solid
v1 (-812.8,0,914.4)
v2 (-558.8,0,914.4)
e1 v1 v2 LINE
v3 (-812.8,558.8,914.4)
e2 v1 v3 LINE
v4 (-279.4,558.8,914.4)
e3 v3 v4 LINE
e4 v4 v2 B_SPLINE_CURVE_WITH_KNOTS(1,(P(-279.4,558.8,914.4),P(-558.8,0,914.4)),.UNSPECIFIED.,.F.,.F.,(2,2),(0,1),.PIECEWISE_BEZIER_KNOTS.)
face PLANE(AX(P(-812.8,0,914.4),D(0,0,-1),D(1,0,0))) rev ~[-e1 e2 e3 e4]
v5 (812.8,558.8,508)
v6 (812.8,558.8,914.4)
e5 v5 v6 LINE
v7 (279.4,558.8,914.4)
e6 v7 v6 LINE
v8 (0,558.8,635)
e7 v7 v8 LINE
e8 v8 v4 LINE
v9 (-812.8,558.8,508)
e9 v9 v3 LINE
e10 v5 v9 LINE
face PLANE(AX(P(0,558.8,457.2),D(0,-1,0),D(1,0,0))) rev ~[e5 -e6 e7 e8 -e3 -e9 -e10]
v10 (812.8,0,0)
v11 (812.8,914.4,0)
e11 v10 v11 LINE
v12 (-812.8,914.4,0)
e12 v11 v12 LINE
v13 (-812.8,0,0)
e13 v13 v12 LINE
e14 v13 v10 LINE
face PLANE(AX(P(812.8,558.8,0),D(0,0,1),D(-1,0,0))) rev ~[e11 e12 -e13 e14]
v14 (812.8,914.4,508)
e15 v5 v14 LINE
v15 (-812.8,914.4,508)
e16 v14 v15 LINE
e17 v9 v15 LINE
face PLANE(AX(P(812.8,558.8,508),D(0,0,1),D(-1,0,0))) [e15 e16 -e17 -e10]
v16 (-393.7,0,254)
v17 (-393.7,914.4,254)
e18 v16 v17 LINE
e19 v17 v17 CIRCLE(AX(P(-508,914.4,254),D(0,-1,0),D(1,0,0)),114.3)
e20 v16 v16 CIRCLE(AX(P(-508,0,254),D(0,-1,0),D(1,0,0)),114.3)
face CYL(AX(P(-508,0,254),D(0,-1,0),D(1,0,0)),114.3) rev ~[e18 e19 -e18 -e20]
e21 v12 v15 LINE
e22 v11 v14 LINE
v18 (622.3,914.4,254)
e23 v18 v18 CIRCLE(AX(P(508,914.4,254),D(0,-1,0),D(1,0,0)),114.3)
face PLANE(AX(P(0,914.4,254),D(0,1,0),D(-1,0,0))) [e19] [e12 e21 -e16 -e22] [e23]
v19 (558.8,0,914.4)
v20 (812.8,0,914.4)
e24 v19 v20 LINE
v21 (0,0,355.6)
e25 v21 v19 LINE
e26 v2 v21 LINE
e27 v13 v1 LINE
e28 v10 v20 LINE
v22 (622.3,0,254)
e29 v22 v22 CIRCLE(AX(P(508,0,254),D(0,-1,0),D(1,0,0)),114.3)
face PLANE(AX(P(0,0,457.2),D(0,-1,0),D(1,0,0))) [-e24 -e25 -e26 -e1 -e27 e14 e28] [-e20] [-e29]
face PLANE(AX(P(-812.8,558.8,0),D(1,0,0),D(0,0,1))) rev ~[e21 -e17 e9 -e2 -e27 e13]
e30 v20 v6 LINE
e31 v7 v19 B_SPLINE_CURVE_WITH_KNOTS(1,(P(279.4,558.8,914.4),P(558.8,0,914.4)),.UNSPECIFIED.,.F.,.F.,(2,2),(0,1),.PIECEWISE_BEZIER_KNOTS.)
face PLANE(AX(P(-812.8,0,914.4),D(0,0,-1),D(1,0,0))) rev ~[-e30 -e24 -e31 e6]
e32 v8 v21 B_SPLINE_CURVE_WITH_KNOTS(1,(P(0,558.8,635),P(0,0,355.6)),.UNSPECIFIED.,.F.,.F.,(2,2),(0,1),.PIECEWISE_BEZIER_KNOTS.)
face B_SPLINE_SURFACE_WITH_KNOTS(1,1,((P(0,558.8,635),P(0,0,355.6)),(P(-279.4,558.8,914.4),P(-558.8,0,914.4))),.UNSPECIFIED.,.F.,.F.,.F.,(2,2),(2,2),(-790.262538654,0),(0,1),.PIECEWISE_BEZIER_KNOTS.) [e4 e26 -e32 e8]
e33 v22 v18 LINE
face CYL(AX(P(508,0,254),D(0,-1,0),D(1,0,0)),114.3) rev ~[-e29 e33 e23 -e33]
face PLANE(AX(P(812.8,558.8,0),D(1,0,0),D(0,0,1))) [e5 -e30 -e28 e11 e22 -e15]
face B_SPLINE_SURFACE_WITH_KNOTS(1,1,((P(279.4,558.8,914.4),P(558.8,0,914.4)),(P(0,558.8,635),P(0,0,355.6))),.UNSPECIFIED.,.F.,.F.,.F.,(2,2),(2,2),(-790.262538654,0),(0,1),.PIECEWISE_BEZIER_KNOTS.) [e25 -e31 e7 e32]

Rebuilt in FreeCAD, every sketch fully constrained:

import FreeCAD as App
import Part
import Sketcher

V = App.Vector
Q = App.Units.Quantity

doc = App.newDocument("Part")
params = doc.addObject("Spreadsheet::Sheet", "Params")
for row, (alias, value) in enumerate([
    ("sketch1_width", "64 in"),
    ("sketch1_height", "36 in"),
    ("pad1_length", "22 in"),
    ("sketch2_width", "64 in"),
    ("sketch2_height", "20 in"),
    ("pad2_length", "14 in"),
    ("sketch3_width", "22 in"),
    ("sketch4_width", "44 in"),
    ("sketch5_diameter", "9 in"),
], start=1):
    params.set(f"A{row}", alias)
    params.set(f"B{row}", "=" + value)
    params.setAlias(f"B{row}", alias)

body = doc.addObject("PartDesign::Body", "Body")

# Sketch on XZ plane
sketch1 = body.newObject("Sketcher::SketchObject", "Sketch")
sketch1.AttachmentSupport = (doc.getObject("XZ_Plane"), [""])
sketch1.MapMode = "FlatFace"
sketch1.addGeometry([
    Part.LineSegment(V(-813, 914, 0), V(-813, 0, 0)),
    Part.LineSegment(V(-813, 0, 0), V(813, 0, 0)),
    Part.LineSegment(V(813, 0, 0), V(813, 914, 0)),
    Part.LineSegment(V(813, 914, 0), V(-813, 914, 0)),
], False)
sketch1.addConstraint([
    Sketcher.Constraint("Coincident", 0, 2, 1, 1),
    Sketcher.Constraint("Coincident", 1, 2, 2, 1),
    Sketcher.Constraint("Coincident", 2, 2, 3, 1),
    Sketcher.Constraint("Coincident", 3, 2, 0, 1),
    Sketcher.Constraint("Vertical", 0),
    Sketcher.Constraint("Horizontal", 1),
    Sketcher.Constraint("Vertical", 2),
    Sketcher.Constraint("Horizontal", 3),
    Sketcher.Constraint("Symmetric", 0, 2, 1, 2, -1, 1),
    Sketcher.Constraint("DistanceX", 1, 1, 1, 2, Q("64 in")),
    Sketcher.Constraint("DistanceY", 0, 2, 0, 1, Q("36 in")),
])
sketch1.setExpression("Constraints[9]", "Params.sketch1_width")
sketch1.setExpression("Constraints[10]", "Params.sketch1_height")
pad1 = body.newObject("PartDesign::Pad", "Pad")
pad1.Profile = sketch1
pad1.setExpression("Length", "Params.pad1_length")
pad1.Reversed = True

# Sketch on XZ plane
sketch2 = body.newObject("Sketcher::SketchObject", "Sketch001")
sketch2.AttachmentSupport = (doc.getObject("XZ_Plane"), [""])
sketch2.MapMode = "FlatFace"
sketch2.AttachmentOffset = App.Placement(V(0, 0, -22 * 25.4), App.Rotation())
sketch2.addGeometry([
    Part.LineSegment(V(813, 508, 0), V(813, 0, 0)),
    Part.LineSegment(V(813, 0, 0), V(-813, 0, 0)),
    Part.LineSegment(V(-813, 0, 0), V(-813, 508, 0)),
    Part.LineSegment(V(-813, 508, 0), V(813, 508, 0)),
], False)
sketch2.addConstraint([
    Sketcher.Constraint("Coincident", 0, 2, 1, 1),
    Sketcher.Constraint("Coincident", 1, 2, 2, 1),
    Sketcher.Constraint("Coincident", 2, 2, 3, 1),
    Sketcher.Constraint("Coincident", 3, 2, 0, 1),
    Sketcher.Constraint("Vertical", 0),
    Sketcher.Constraint("Horizontal", 1),
    Sketcher.Constraint("Vertical", 2),
    Sketcher.Constraint("Horizontal", 3),
    Sketcher.Constraint("Symmetric", 0, 2, 1, 2, -1, 1),
    Sketcher.Constraint("DistanceX", 1, 2, 1, 1, Q("64 in")),
    Sketcher.Constraint("DistanceY", 0, 2, 0, 1, Q("20 in")),
])
sketch2.setExpression("Constraints[9]", "Params.sketch2_width")
sketch2.setExpression("Constraints[10]", "Params.sketch2_height")
pad2 = body.newObject("PartDesign::Pad", "Pad001")
pad2.Profile = sketch2
pad2.setExpression("Length", "Params.pad2_length")
pad2.Reversed = True

# Sketch on XZ plane
sketch3 = body.newObject("Sketcher::SketchObject", "Sketch002")
sketch3.AttachmentSupport = (doc.getObject("XZ_Plane"), [""])
sketch3.MapMode = "FlatFace"
sketch3.AttachmentOffset = App.Placement(V(0, 0, -22 * 25.4), App.Rotation())
sketch3.addGeometry([
    Part.LineSegment(V(-279, 914, 0), V(279, 914, 0)),
    Part.LineSegment(V(279, 914, 0), V(0, 635, 0)),
    Part.LineSegment(V(0, 635, 0), V(-279, 914, 0)),
], False)
sketch3.addConstraint([
    Sketcher.Constraint("Coincident", 0, 2, 1, 1),
    Sketcher.Constraint("Coincident", 1, 2, 2, 1),
    Sketcher.Constraint("Coincident", 2, 2, 0, 1),
    Sketcher.Constraint("Horizontal", 0),
    Sketcher.Constraint("PointOnObject", 1, 2, -2),
    Sketcher.Constraint("Perpendicular", 1, 2),
    Sketcher.Constraint("Equal", 1, 2),
    Sketcher.Constraint("DistanceX", 0, 1, 0, 2, Q("22 in")),
    Sketcher.Constraint("DistanceY", -1, 1, 0, 2, Q("36 in")),
])
sketch3.setExpression("Constraints[7]", "Params.sketch3_width")

# Sketch on XZ plane
sketch4 = body.newObject("Sketcher::SketchObject", "Sketch003")
sketch4.AttachmentSupport = (doc.getObject("XZ_Plane"), [""])
sketch4.MapMode = "FlatFace"
sketch4.addGeometry([
    Part.LineSegment(V(559, 914, 0), V(-559, 914, 0)),
    Part.LineSegment(V(-559, 914, 0), V(0, 356, 0)),
    Part.LineSegment(V(0, 356, 0), V(559, 914, 0)),
], False)
sketch4.addConstraint([
    Sketcher.Constraint("Coincident", 0, 2, 1, 1),
    Sketcher.Constraint("Coincident", 1, 2, 2, 1),
    Sketcher.Constraint("Coincident", 2, 2, 0, 1),
    Sketcher.Constraint("Horizontal", 0),
    Sketcher.Constraint("PointOnObject", 1, 2, -2),
    Sketcher.Constraint("Perpendicular", 1, 2),
    Sketcher.Constraint("Equal", 1, 2),
    Sketcher.Constraint("DistanceX", 0, 2, 0, 1, Q("44 in")),
    Sketcher.Constraint("DistanceY", -1, 1, 0, 2, Q("36 in")),
])
sketch4.setExpression("Constraints[7]", "Params.sketch4_width")

subtractiveloft = body.newObject("PartDesign::SubtractiveLoft", "SubtractiveLoft")
subtractiveloft.Profile = sketch3
subtractiveloft.Sections = [sketch4]

# Sketch on XZ plane
sketch5 = body.newObject("Sketcher::SketchObject", "Sketch004")
sketch5.AttachmentSupport = (doc.getObject("XZ_Plane"), [""])
sketch5.MapMode = "FlatFace"
sketch5.addGeometry([
    Part.Circle(V(-508, 254, 0), V(0, 0, 1), 114),
    Part.Circle(V(508, 254, 0), V(0, 0, 1), 114),
], False)
sketch5.addConstraint([
    Sketcher.Constraint("Equal", 0, 1),
    Sketcher.Constraint("Symmetric", 0, 3, 1, 3, -2),
    Sketcher.Constraint("Diameter", 0, Q("9 in")),
    Sketcher.Constraint("DistanceX", 0, 3, -1, 1, Q("20 in")),
    Sketcher.Constraint("DistanceY", -1, 1, 0, 3, Q("10 in")),
])
sketch5.setExpression("Constraints[2]", "Params.sketch5_diameter")
pocket1 = body.newObject("PartDesign::Pocket", "Pocket")
pocket1.Profile = sketch5
pocket1.Type = "ThroughAll"

doc.recompute()
